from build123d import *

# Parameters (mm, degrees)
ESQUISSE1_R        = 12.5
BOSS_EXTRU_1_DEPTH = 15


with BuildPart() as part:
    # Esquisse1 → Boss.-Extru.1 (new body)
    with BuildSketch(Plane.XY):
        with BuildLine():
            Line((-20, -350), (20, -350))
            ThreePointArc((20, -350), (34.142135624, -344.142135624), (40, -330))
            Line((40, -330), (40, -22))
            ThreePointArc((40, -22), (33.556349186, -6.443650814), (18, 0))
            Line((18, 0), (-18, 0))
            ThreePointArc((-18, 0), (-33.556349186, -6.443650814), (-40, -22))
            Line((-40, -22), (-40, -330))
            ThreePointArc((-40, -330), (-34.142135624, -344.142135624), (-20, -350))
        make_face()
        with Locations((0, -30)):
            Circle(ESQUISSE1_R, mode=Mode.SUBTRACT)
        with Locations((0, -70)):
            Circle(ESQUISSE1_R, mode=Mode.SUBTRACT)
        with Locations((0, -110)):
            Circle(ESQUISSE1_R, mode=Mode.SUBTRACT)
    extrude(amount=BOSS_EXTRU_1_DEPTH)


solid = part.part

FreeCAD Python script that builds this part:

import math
import FreeCAD as App
import Part
import Sketcher
from FreeCAD import Vector
Q = App.Units.Quantity

doc = App.newDocument("Part")
body = doc.addObject("PartDesign::Body", "Body")

sketch1 = doc.addObject("Sketcher::SketchObject", "Sketch")
body.addObject(sketch1)
sketch1.AttachmentSupport = (doc.XY_Plane, [""])
sketch1.MapMode = "FlatFace"
sketch1.addGeometry(Part.LineSegment(Vector(-20, -350, 0), Vector(20, -350, 0)), False)
sketch1.addGeometry(Part.ArcOfCircle(Part.Circle(Vector(20, -330, 0), Vector(0, 0, 1), 20), math.radians(-90), math.radians(0)), False)
sketch1.addGeometry(Part.LineSegment(Vector(40, -330, 0), Vector(40, -22, 0)), False)
sketch1.addGeometry(Part.ArcOfCircle(Part.Circle(Vector(18, -22, 0), Vector(0, 0, 1), 22), math.radians(0), math.radians(90)), False)
sketch1.addGeometry(Part.LineSegment(Vector(18, 0, 0), Vector(-18, 0, 0)), False)
sketch1.addGeometry(Part.ArcOfCircle(Part.Circle(Vector(-18, -22, 0), Vector(0, 0, 1), 22), math.radians(90), math.radians(180)), False)
sketch1.addGeometry(Part.LineSegment(Vector(-40, -22, 0), Vector(-40, -330, 0)), False)
sketch1.addGeometry(Part.ArcOfCircle(Part.Circle(Vector(-20, -330, 0), Vector(0, 0, 1), 20), math.radians(180), math.radians(270)), False)
sketch1.addGeometry(Part.Circle(Vector(0, -110, 0), Vector(0, 0, 1), 12), False)
sketch1.addGeometry(Part.Circle(Vector(0, -70, 0), Vector(0, 0, 1), 12), False)
sketch1.addGeometry(Part.Circle(Vector(0, -30, 0), Vector(0, 0, 1), 12), False)
sketch1.addConstraint(Sketcher.Constraint("Tangent", 0, 2, 1, 1))
sketch1.addConstraint(Sketcher.Constraint("Tangent", 1, 2, 2, 1))
sketch1.addConstraint(Sketcher.Constraint("Tangent", 2, 2, 3, 1))
sketch1.addConstraint(Sketcher.Constraint("Tangent", 3, 2, 4, 1))
sketch1.addConstraint(Sketcher.Constraint("Tangent", 4, 2, 5, 1))
sketch1.addConstraint(Sketcher.Constraint("Tangent", 5, 2, 6, 1))
sketch1.addConstraint(Sketcher.Constraint("Tangent", 6, 2, 7, 1))
sketch1.addConstraint(Sketcher.Constraint("Tangent", 7, 2, 0, 1))
sketch1.addConstraint(Sketcher.Constraint("Horizontal", 0))
sketch1.addConstraint(Sketcher.Constraint("Vertical", 2))
sketch1.addConstraint(Sketcher.Constraint("Horizontal", 4))
sketch1.addConstraint(Sketcher.Constraint("Vertical", 6))
sketch1.addConstraint(Sketcher.Constraint("Equal", 3, 5))
sketch1.addConstraint(Sketcher.Constraint("Equal", 1, 7))
sketch1.addConstraint(Sketcher.Constraint("Equal", 8, 9))
sketch1.addConstraint(Sketcher.Constraint("Equal", 9, 10))
sketch1.addConstraint(Sketcher.Constraint("Symmetric", 3, 2, 4, 2, -1, 1))
sketch1.addConstraint(Sketcher.Constraint("PointOnObject", 8, 3, -2))
sketch1.addConstraint(Sketcher.Constraint("PointOnObject", 9, 3, -2))
sketch1.addConstraint(Sketcher.Constraint("PointOnObject", 10, 3, -2))
sketch1.addConstraint(Sketcher.Constraint("Diameter", 8, Q("25 mm")))
sketch1.addConstraint(Sketcher.Constraint("Radius", 1, Q("20 mm")))
sketch1.addConstraint(Sketcher.Constraint("Radius", 3, Q("22 mm")))
sketch1.addConstraint(Sketcher.Constraint("DistanceX", 0, 1, 0, 2, Q("40 mm")))
sketch1.addConstraint(Sketcher.Constraint("DistanceY", 2, 1, 2, 2, Q("308 mm")))
sketch1.addConstraint(Sketcher.Constraint("DistanceY", 8, 3, -1, 1, Q("110 mm")))
sketch1.addConstraint(Sketcher.Constraint("DistanceY", 9, 3, -1, 1, Q("70 mm")))
sketch1.addConstraint(Sketcher.Constraint("DistanceY", 10, 3, -1, 1, Q("30 mm")))
pad1 = doc.addObject("PartDesign::Pad", "Pad")
body.addObject(pad1)
pad1.Profile = sketch1
pad1.Length = 15

doc.recompute()
